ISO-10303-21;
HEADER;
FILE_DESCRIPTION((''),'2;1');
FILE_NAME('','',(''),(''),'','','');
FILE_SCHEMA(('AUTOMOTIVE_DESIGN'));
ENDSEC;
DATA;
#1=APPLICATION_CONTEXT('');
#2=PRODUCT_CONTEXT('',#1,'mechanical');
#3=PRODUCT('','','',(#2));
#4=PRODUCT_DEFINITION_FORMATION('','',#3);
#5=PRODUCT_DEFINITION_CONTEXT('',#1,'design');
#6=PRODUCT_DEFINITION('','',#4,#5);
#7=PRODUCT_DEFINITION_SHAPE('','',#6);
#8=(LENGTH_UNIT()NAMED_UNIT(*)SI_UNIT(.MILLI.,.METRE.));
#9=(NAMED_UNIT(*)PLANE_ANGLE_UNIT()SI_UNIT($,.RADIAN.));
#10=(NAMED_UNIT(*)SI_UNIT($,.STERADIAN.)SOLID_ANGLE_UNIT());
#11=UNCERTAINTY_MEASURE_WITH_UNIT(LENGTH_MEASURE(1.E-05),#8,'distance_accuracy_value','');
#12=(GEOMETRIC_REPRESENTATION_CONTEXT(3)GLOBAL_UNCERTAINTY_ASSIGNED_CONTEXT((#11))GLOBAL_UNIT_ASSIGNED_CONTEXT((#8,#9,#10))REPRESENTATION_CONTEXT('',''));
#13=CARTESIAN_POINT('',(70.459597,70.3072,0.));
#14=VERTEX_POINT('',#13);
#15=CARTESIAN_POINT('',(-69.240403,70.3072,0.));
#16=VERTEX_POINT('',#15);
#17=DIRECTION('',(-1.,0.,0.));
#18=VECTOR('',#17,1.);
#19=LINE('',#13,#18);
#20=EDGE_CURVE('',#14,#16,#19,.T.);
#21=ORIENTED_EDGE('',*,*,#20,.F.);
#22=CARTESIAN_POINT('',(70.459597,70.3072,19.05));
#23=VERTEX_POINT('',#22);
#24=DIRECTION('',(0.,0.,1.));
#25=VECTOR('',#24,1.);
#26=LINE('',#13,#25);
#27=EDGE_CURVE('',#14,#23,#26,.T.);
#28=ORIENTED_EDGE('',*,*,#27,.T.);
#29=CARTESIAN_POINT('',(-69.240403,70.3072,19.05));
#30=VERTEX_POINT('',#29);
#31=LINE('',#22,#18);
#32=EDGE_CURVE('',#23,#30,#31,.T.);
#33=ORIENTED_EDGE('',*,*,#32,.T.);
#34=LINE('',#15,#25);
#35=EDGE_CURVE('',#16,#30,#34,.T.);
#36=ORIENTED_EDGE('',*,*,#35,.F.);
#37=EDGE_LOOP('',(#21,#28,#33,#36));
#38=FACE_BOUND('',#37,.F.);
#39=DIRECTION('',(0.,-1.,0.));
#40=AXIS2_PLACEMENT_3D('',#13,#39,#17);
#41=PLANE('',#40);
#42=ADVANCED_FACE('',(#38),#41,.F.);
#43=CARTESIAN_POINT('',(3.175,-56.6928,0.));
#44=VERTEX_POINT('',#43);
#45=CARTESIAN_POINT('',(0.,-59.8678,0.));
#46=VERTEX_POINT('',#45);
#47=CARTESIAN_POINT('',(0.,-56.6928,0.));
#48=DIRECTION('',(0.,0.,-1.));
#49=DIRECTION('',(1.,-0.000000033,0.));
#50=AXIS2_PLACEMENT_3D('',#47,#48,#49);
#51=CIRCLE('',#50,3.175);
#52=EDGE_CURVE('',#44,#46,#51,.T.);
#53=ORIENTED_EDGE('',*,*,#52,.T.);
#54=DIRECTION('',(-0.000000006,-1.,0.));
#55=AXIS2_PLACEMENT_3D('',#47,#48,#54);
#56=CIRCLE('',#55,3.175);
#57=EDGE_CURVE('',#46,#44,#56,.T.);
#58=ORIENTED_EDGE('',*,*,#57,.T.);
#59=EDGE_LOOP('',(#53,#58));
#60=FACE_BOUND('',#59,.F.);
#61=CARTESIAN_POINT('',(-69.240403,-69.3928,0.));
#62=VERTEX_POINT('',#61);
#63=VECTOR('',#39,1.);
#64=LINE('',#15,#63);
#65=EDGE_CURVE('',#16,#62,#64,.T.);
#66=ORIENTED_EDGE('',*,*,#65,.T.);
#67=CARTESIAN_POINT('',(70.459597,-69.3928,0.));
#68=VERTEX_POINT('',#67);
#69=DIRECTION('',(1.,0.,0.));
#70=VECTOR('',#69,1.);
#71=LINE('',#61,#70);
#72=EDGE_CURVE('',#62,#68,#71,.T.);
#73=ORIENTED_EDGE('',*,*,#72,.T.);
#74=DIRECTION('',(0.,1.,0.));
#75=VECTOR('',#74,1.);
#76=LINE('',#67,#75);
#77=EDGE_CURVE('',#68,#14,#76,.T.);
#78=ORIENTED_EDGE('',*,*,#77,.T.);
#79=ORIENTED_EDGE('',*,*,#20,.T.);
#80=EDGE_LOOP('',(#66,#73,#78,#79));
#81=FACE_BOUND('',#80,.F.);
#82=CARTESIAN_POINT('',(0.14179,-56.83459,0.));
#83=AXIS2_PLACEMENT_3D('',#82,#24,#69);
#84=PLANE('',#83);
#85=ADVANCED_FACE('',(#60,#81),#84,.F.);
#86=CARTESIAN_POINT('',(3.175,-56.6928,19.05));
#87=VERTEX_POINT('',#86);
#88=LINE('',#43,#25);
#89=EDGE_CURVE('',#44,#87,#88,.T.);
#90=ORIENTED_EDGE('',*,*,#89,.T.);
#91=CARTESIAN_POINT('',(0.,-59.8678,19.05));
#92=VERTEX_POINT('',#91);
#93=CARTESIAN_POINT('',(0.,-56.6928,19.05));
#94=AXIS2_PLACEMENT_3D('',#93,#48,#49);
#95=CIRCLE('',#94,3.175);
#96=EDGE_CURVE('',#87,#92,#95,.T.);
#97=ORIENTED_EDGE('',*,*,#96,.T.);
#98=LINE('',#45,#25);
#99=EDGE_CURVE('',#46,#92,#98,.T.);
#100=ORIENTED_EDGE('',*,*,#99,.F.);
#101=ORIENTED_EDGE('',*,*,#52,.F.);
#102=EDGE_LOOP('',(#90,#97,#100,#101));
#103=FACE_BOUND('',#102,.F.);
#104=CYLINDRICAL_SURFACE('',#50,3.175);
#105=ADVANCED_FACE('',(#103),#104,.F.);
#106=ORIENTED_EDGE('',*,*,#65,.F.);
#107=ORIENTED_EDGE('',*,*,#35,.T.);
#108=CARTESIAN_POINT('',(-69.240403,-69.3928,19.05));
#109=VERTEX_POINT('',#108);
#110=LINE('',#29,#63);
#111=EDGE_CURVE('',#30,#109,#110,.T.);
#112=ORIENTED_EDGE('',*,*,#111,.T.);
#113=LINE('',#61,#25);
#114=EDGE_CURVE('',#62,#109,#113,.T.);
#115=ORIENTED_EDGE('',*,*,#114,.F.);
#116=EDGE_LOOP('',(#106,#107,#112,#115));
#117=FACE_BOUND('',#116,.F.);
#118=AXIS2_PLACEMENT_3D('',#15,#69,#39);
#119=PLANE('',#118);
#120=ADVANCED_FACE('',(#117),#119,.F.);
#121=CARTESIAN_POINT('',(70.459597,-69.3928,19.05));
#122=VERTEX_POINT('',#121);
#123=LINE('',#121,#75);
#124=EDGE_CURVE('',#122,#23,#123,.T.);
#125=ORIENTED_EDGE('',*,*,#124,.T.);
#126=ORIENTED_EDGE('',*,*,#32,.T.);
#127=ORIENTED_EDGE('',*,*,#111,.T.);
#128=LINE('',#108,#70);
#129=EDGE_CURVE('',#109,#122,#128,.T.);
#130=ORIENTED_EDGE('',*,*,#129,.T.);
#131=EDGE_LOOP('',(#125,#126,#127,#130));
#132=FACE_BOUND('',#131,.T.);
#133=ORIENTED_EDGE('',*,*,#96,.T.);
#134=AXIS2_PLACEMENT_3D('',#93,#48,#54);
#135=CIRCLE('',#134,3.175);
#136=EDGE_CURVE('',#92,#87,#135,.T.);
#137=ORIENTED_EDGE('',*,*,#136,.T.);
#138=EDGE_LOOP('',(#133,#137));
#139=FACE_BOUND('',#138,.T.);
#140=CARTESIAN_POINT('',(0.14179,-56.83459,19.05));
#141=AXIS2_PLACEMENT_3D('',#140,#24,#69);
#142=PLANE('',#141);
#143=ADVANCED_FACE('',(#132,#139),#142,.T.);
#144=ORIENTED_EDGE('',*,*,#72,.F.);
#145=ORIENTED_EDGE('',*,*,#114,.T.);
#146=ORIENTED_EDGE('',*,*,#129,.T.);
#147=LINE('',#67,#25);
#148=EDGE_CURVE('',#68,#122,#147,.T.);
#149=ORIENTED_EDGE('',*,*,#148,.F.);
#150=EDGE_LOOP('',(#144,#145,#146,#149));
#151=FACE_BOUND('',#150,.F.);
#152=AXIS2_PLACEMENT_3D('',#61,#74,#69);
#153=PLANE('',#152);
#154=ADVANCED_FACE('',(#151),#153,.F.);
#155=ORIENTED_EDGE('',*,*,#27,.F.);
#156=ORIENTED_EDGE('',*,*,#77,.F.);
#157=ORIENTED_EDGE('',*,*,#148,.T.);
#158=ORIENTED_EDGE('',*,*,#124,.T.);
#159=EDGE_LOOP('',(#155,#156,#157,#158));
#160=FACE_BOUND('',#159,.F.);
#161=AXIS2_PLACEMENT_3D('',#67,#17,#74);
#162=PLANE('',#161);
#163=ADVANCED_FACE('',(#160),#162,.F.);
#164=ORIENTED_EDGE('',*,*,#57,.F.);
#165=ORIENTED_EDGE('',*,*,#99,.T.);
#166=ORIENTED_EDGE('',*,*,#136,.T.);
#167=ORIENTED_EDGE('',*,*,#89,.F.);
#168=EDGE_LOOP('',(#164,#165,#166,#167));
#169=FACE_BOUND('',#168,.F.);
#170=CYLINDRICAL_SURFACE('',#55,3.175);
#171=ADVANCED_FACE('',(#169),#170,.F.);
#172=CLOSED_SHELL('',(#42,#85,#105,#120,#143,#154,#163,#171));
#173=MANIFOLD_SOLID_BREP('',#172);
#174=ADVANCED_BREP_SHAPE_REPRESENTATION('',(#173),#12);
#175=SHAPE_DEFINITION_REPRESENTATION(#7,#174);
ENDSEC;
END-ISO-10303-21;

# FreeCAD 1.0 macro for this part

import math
import FreeCAD as App
import Part
import Sketcher
from FreeCAD import Vector
Q = App.Units.Quantity

doc = App.newDocument("Part")
body = doc.addObject("PartDesign::Body", "Body")

# Sketch on XY plane
sketch1 = body.newObject("Sketcher::SketchObject", "Sketch")
sketch1.AttachmentSupport = (doc.getObject("XY_Plane"), [""])
sketch1.MapMode = "FlatFace"
sketch1.addGeometry([
    Part.LineSegment(Vector(70.5, -69.4, 0), Vector(70.5, 70.3, 0)),  # 0
    Part.LineSegment(Vector(70.5, 70.3, 0), Vector(-69.2, 70.3, 0)),  # 1
    Part.LineSegment(Vector(-69.2, 70.3, 0), Vector(-69.2, -69.4, 0)),  # 2
    Part.LineSegment(Vector(-69.2, -69.4, 0), Vector(70.5, -69.4, 0)),  # 3
    Part.ArcOfCircle(Part.Circle(Vector(0, -56.7, 0), Vector(0, 0, 1), 3.2), math.radians(0), math.radians(270)),  # 4
    Part.ArcOfCircle(Part.Circle(Vector(0, -56.7, 0), Vector(0, 0, 1), 3.2), math.radians(-90), math.radians(0)),  # 5
], False)
sketch1.addConstraint([
    Sketcher.Constraint("Coincident", 0, 2, 1, 1),
    Sketcher.Constraint("Coincident", 1, 2, 2, 1),
    Sketcher.Constraint("Coincident", 2, 2, 3, 1),
    Sketcher.Constraint("Coincident", 3, 2, 0, 1),
    Sketcher.Constraint("Tangent", 4, 1, 5, 2),
    Sketcher.Constraint("Coincident", 5, 1, 4, 2),
    Sketcher.Constraint("Vertical", 0),
    Sketcher.Constraint("Horizontal", 1),
    Sketcher.Constraint("Vertical", 2),
    Sketcher.Constraint("Horizontal", 3),
    Sketcher.Constraint("PointOnObject", 4, 3, -2),
    Sketcher.Constraint("PointOnObject", 5, 1, -2),
    Sketcher.Constraint("Horizontal", 5, 3, 4, 1),
    Sketcher.Constraint("Equal", 3, 0),
    Sketcher.Constraint("DistanceX", 1, 2, 1, 1, Q("5.5 in")),
    Sketcher.Constraint("Radius", 4, Q("0.125 in")),
    Sketcher.Constraint("DistanceY", 5, 3, 0, 2, Q("5 in")),
    Sketcher.Constraint("DistanceY", 4, 3, -1, 1, Q("2.232 in")),
    Sketcher.Constraint("DistanceX", -1, 1, 0, 2, Q("2.7739999 in")),
])
pad1 = body.newObject("PartDesign::Pad", "Pad")
pad1.Profile = sketch1
pad1.Length = Q("0.75 in")

doc.recompute()
